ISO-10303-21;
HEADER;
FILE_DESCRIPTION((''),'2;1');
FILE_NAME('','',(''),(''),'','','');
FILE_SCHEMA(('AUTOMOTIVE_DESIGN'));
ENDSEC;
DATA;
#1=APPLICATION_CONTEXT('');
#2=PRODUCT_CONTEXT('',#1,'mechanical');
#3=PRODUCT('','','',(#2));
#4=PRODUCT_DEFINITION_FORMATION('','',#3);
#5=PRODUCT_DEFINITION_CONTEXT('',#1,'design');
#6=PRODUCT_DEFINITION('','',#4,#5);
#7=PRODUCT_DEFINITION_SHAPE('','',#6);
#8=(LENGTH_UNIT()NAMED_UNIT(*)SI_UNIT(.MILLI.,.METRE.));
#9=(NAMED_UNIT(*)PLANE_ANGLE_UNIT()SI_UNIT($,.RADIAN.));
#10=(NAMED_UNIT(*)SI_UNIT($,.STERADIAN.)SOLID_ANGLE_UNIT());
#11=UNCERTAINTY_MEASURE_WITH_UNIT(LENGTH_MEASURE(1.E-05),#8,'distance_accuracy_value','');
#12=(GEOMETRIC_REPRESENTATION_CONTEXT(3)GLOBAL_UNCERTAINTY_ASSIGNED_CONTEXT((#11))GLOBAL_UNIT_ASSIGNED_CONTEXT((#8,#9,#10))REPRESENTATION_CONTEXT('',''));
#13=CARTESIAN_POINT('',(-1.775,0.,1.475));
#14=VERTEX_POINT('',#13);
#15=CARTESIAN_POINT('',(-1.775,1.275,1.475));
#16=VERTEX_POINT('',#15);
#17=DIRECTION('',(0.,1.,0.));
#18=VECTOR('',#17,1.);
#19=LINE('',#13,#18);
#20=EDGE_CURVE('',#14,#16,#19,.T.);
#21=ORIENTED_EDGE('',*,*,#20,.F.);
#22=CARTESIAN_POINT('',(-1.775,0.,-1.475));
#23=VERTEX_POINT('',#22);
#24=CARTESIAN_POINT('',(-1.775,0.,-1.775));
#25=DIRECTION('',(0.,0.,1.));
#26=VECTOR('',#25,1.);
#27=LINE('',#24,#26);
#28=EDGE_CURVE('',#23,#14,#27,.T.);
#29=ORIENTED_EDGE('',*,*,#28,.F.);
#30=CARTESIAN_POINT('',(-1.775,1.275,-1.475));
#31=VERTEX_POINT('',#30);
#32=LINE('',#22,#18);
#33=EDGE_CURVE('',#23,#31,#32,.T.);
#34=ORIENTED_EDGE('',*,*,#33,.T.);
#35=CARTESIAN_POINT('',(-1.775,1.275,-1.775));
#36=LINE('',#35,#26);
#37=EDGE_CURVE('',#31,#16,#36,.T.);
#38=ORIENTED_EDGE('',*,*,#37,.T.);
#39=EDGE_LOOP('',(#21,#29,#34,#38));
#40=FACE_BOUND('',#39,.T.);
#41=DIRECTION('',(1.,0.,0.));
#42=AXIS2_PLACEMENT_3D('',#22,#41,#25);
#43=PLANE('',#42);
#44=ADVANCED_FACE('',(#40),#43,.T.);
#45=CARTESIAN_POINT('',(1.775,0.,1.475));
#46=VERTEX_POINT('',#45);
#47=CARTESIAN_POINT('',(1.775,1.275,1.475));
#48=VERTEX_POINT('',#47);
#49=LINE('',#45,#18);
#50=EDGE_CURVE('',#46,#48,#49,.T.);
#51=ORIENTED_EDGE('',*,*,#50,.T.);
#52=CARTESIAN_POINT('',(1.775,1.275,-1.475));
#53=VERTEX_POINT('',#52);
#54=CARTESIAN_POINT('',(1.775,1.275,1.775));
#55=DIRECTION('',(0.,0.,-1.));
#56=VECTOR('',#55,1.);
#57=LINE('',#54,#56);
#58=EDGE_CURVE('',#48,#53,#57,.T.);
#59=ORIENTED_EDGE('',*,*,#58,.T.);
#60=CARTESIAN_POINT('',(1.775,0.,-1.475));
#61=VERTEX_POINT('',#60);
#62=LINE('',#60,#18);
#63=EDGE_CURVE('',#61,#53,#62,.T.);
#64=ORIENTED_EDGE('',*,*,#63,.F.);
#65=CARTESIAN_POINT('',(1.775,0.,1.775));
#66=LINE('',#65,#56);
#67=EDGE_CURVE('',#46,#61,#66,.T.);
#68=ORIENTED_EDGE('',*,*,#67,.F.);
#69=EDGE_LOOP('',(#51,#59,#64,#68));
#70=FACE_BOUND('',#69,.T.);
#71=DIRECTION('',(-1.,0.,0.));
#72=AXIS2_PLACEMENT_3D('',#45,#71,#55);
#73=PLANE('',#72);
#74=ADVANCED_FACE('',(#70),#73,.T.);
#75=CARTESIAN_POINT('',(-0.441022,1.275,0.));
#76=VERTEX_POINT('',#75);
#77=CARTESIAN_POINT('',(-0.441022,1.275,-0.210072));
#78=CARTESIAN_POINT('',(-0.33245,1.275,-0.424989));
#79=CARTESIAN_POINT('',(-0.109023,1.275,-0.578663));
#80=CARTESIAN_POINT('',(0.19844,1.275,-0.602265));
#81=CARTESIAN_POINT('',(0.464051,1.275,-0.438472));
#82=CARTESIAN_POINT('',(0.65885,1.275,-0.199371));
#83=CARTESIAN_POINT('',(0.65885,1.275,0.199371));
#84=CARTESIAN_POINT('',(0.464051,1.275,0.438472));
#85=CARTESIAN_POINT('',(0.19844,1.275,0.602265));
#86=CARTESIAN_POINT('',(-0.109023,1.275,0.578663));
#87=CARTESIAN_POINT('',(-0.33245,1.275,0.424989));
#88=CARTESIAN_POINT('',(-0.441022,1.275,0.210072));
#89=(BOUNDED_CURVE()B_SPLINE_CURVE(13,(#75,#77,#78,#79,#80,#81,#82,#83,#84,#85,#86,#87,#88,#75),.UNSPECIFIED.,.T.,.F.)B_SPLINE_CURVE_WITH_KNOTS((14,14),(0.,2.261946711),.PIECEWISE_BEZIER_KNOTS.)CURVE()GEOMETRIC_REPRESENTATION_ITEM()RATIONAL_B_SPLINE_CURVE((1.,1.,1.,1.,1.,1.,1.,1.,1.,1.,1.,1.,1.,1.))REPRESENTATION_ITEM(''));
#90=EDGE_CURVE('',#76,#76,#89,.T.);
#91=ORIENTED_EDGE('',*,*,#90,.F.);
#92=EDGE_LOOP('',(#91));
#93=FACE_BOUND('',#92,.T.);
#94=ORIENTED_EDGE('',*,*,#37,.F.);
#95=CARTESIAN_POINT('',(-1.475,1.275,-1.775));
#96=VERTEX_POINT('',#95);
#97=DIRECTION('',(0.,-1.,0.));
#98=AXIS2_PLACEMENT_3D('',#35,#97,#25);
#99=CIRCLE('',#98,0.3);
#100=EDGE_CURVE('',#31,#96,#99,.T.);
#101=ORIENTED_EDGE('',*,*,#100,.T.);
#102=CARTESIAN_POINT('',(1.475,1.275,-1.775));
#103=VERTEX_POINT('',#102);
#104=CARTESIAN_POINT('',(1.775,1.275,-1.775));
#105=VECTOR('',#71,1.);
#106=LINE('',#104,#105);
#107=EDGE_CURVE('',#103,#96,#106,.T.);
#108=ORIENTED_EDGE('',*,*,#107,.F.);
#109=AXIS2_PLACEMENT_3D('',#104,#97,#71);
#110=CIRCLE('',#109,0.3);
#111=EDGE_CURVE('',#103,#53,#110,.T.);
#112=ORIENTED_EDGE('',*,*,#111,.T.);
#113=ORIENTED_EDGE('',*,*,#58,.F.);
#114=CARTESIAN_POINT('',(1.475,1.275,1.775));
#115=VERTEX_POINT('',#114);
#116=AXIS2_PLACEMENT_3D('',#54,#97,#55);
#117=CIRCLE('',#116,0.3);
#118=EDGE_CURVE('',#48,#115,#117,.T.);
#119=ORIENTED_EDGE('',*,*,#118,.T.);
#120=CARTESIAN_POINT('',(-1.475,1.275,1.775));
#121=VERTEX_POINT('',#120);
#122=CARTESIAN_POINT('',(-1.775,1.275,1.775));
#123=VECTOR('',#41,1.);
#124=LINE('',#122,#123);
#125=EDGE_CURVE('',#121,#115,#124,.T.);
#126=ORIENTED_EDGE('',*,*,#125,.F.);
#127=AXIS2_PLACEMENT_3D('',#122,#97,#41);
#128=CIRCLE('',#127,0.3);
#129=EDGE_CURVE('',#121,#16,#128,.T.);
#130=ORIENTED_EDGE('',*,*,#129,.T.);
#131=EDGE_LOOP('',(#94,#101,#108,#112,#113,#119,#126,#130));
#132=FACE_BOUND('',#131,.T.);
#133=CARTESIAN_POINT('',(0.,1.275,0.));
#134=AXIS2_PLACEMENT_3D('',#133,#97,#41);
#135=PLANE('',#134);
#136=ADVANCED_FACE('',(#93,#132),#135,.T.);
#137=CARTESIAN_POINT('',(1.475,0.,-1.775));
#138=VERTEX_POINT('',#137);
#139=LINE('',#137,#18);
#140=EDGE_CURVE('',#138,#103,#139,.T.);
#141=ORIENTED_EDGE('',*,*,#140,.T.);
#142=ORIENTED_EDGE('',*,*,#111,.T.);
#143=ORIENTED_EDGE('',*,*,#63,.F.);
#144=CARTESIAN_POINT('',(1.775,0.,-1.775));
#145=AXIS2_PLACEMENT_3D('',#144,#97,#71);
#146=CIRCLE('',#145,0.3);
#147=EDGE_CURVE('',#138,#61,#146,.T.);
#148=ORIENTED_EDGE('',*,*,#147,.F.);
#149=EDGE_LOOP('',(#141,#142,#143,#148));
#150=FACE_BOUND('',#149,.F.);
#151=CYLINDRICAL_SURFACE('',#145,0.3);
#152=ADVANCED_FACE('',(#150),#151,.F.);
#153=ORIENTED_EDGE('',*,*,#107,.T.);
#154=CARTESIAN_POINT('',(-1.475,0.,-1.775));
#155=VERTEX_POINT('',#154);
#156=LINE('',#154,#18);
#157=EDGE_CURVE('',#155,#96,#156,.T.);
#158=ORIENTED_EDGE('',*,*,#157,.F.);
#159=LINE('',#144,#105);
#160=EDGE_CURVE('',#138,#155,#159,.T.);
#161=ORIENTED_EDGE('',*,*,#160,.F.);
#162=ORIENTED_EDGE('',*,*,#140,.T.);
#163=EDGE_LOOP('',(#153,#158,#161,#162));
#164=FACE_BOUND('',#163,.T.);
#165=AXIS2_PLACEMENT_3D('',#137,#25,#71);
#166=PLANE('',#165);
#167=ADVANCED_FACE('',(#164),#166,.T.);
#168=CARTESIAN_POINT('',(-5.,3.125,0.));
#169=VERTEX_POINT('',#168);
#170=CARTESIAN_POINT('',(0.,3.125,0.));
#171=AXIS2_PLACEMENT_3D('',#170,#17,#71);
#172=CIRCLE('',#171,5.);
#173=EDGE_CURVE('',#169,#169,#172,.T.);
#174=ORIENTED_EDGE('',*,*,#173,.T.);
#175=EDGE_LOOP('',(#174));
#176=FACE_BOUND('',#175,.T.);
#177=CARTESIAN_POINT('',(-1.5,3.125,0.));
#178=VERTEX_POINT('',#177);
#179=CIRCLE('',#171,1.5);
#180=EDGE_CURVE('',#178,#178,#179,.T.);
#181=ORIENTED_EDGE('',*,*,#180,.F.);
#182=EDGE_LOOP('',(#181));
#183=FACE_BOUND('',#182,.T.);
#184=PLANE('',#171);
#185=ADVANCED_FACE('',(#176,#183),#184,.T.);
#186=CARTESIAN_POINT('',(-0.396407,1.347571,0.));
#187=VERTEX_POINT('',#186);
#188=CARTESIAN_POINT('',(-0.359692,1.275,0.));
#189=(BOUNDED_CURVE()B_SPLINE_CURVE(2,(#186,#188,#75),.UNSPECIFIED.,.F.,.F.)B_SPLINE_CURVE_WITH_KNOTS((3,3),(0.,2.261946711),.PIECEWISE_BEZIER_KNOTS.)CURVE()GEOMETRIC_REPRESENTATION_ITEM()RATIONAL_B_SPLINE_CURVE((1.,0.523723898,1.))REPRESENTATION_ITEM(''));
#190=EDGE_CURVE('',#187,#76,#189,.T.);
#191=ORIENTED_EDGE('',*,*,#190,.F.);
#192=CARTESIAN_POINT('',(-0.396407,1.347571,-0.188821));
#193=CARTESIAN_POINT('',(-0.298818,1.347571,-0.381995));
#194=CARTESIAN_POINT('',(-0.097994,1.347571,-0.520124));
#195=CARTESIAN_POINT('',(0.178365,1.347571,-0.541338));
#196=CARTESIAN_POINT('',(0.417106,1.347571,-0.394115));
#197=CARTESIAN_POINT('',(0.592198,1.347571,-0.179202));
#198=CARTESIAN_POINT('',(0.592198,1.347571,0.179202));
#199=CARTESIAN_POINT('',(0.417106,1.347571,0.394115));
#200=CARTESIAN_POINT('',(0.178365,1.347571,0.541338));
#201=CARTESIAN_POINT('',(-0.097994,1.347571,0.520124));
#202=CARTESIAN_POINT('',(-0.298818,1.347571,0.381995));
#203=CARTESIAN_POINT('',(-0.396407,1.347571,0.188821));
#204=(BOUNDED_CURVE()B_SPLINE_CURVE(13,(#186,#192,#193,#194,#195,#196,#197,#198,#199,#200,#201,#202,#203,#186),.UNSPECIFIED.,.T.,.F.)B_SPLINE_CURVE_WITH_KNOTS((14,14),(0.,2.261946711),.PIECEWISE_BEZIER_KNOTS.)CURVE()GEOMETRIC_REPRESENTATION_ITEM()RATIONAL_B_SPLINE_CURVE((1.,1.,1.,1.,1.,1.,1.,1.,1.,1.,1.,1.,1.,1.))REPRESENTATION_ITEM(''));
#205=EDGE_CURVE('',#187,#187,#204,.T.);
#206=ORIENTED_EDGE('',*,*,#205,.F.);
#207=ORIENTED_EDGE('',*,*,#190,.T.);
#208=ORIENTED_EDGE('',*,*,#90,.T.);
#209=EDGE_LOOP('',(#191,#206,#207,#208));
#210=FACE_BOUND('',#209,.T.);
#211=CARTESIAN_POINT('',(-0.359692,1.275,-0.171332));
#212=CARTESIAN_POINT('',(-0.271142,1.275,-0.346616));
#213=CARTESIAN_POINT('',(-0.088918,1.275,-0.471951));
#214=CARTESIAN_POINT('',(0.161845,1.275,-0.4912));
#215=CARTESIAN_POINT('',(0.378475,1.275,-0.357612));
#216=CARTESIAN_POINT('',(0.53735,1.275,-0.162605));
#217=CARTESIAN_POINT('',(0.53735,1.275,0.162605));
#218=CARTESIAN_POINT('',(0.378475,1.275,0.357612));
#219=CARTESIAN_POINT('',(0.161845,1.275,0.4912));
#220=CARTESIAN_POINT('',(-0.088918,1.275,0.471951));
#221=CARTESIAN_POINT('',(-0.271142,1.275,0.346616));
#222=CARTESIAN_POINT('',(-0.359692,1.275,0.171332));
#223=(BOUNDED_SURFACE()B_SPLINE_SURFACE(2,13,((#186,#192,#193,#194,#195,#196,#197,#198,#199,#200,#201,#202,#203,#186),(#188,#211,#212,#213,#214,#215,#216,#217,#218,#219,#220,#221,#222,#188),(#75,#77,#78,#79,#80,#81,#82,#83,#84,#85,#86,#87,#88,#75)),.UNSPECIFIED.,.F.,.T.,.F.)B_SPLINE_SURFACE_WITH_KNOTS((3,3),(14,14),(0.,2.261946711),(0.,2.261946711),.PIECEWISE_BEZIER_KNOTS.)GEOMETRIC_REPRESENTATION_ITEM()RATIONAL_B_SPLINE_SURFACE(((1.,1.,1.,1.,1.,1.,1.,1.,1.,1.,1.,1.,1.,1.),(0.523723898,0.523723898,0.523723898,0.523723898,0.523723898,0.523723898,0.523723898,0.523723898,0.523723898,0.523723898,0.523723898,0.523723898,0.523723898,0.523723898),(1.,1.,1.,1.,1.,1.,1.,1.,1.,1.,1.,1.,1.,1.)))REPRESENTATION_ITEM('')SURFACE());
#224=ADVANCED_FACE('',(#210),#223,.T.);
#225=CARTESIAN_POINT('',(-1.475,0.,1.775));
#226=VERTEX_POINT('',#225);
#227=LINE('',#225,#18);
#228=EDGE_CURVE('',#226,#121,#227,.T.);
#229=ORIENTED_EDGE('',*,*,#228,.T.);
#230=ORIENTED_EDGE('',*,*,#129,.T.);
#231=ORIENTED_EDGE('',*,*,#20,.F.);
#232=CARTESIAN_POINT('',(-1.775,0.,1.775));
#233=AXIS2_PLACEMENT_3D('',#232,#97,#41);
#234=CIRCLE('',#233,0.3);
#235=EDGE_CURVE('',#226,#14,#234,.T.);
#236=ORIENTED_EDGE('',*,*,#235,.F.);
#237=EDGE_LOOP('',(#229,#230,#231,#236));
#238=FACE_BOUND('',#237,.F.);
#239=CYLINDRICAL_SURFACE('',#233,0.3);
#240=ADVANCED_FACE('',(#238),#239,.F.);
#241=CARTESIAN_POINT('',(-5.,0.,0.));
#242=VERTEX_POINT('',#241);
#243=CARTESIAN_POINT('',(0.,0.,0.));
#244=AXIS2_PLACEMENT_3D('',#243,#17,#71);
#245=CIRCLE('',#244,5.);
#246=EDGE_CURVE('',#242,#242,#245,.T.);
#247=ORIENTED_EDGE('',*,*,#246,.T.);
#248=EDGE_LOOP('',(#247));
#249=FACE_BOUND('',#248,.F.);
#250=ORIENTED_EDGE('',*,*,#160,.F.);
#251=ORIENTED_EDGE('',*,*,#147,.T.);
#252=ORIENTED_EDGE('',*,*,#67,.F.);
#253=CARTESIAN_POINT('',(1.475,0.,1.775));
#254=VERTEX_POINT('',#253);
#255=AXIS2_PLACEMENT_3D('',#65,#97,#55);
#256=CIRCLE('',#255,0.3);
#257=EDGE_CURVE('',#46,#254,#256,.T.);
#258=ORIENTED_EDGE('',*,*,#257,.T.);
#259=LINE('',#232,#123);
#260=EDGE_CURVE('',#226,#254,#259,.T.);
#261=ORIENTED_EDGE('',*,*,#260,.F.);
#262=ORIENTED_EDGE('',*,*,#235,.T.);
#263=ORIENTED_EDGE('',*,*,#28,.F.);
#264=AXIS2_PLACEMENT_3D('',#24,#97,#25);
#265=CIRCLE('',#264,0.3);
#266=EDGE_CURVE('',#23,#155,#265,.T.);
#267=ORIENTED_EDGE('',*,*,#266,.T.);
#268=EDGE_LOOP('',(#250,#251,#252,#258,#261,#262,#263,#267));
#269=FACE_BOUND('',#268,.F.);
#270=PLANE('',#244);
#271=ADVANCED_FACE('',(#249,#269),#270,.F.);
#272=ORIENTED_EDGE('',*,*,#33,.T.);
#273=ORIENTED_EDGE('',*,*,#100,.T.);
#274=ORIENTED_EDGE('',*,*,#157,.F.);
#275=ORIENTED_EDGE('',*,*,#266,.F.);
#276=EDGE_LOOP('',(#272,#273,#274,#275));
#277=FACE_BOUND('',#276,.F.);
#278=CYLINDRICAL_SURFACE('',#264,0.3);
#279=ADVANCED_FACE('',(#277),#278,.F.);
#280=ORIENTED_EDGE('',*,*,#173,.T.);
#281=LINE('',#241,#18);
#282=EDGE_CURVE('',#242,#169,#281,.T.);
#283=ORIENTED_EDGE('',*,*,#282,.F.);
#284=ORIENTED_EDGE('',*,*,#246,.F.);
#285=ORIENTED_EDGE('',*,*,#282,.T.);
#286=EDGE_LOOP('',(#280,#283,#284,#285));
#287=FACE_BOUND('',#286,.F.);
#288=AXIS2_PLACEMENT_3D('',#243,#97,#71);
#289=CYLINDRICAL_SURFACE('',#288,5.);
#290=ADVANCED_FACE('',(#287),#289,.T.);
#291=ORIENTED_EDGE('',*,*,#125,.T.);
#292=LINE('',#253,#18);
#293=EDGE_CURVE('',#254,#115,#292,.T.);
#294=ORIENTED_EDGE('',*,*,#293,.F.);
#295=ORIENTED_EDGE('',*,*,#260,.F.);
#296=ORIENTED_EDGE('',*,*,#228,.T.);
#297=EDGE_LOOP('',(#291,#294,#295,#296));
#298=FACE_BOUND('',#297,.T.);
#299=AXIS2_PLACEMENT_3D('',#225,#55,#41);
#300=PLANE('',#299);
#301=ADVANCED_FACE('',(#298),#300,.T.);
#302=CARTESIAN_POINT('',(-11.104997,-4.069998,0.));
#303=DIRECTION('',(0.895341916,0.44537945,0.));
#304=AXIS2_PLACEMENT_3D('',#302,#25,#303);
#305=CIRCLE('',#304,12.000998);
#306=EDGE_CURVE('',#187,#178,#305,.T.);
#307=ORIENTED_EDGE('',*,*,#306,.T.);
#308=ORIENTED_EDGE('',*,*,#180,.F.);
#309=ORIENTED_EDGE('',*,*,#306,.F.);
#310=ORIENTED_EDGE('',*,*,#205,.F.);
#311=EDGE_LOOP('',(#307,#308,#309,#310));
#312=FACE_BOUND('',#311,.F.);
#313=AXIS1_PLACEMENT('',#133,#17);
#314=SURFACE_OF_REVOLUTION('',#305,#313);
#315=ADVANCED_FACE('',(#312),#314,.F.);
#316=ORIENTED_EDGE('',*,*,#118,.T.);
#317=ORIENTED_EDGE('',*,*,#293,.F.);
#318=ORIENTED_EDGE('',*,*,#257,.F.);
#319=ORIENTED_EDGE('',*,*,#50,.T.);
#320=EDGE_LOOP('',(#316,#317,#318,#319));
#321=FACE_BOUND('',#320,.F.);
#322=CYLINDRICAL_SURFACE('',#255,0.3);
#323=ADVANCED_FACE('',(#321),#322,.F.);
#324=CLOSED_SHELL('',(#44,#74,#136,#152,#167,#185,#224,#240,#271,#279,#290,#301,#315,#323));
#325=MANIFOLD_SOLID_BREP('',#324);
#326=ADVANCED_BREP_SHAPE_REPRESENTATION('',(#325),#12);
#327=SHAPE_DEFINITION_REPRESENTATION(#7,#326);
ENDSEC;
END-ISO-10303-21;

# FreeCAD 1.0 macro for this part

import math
import FreeCAD as App
import Part
import Sketcher
Q = App.Units.Quantity


def edges_at(feature, points):
    """Names of the edges that pass closest to the given points."""
    edges = feature.Shape.Edges
    near = lambda p: min(range(len(edges)), key=lambda i: edges[i].distToShape(Part.Vertex(*p))[0])
    return sorted({f"Edge{near(p) + 1}" for p in points})

doc = App.newDocument("Part")
params = doc.addObject("Spreadsheet::Sheet", "Params")
for row, (alias, value) in enumerate([
    ("sketch1_diameter", "10 mm"),
    ("sketch1_diameter2", "0.72 mm"),
    ("pad1_length", "3.125 mm"),
    ("sketch2_radius", "0.3 mm"),
    ("pocket1_length", "1.275 mm"),
    ("sketch3_width", "1.5 mm"),
    ("sketch3_width2", "0.36 mm"),
    ("sketch3_height", "1.85 mm"),
    ("groove_angle", "360 deg"),
    ("fillet_radius", "0.05 mm"),
], start=1):
    params.set(f"A{row}", alias)
    params.set(f"B{row}", "=" + value)
    params.setAlias(f"B{row}", alias)

body = doc.addObject("PartDesign::Body", "Body")

sketch1 = doc.addObject("Sketcher::SketchObject", "Sketch")
body.addObject(sketch1)
sketch1.AttachmentSupport = (doc.XZ_Plane, [""])
sketch1.MapMode = "FlatFace"
sketch1.addGeometry([
    Part.Circle(App.Vector(0, 0, 0), App.Vector(0, 0, 1), 5),
    Part.Circle(App.Vector(0, 0, 0), App.Vector(0, 0, 1), 0.36),
], False)
sketch1.addConstraint([
    Sketcher.Constraint("Coincident", 0, 3, -1, 1),
    Sketcher.Constraint("Coincident", 1, 3, -1, 1),
    Sketcher.Constraint("Diameter", 0, Q("10 mm")),
    Sketcher.Constraint("Diameter", 1, Q("0.72 mm")),
])
sketch1.setExpression("Constraints[2]", "Params.sketch1_diameter")
sketch1.setExpression("Constraints[3]", "Params.sketch1_diameter2")
pad1 = doc.addObject("PartDesign::Pad", "Pad")
body.addObject(pad1)
pad1.Profile = sketch1
pad1.setExpression("Length", "Params.pad1_length")
pad1.Reversed = True

sketch2 = doc.addObject("Sketcher::SketchObject", "Sketch001")
body.addObject(sketch2)
sketch2.AttachmentSupport = (doc.XZ_Plane, [""])
sketch2.MapMode = "FlatFace"
sketch2.addGeometry([
    Part.ArcOfCircle(Part.Circle(App.Vector(-1.775, 1.775, 0), App.Vector(0, 0, 1), 0.3), math.radians(0), math.radians(270)),
    Part.LineSegment(App.Vector(-1.775, 1.475, 0), App.Vector(-1.775, -1.475, 0)),
    Part.ArcOfCircle(Part.Circle(App.Vector(-1.775, -1.775, 0), App.Vector(0, 0, 1), 0.3), math.radians(90), math.radians(360)),
    Part.LineSegment(App.Vector(-1.475, -1.775, 0), App.Vector(1.475, -1.775, 0)),
    Part.ArcOfCircle(Part.Circle(App.Vector(1.775, -1.775, 0), App.Vector(0, 0, 1), 0.3), math.radians(180), math.radians(450)),
    Part.LineSegment(App.Vector(1.775, -1.475, 0), App.Vector(1.775, 1.475, 0)),
    Part.ArcOfCircle(Part.Circle(App.Vector(1.775, 1.775, 0), App.Vector(0, 0, 1), 0.3), math.radians(-90), math.radians(180)),
    Part.LineSegment(App.Vector(1.475, 1.775, 0), App.Vector(-1.475, 1.775, 0)),
], False)
sketch2.addConstraint([
    Sketcher.Constraint("Coincident", 0, 2, 1, 1),
    Sketcher.Constraint("Coincident", 1, 2, 2, 1),
    Sketcher.Constraint("Coincident", 2, 2, 3, 1),
    Sketcher.Constraint("Coincident", 3, 2, 4, 1),
    Sketcher.Constraint("Coincident", 4, 2, 5, 1),
    Sketcher.Constraint("Coincident", 5, 2, 6, 1),
    Sketcher.Constraint("Coincident", 6, 2, 7, 1),
    Sketcher.Constraint("Coincident", 7, 2, 0, 1),
    Sketcher.Constraint("Vertical", 1),
    Sketcher.Constraint("Horizontal", 3),
    Sketcher.Constraint("Vertical", 5),
    Sketcher.Constraint("Horizontal", 7),
    Sketcher.Constraint("Equal", 0, 2),
    Sketcher.Constraint("Equal", 2, 4),
    Sketcher.Constraint("Equal", 4, 6),
    Sketcher.Constraint("Symmetric", 0, 3, 4, 3, -1, 1),
    Sketcher.Constraint("Symmetric", 2, 3, 6, 3, -1, 1),
    Sketcher.Constraint("Symmetric", 2, 3, 4, 3, -2),
    Sketcher.Constraint("Horizontal", 4, 3, 2, 2),
    Sketcher.Constraint("Horizontal", 0, 3, 6, 2),
    Sketcher.Constraint("Vertical", 2, 3, 0, 2),
    Sketcher.Constraint("Vertical", 6, 3, 4, 2),
    Sketcher.Constraint("Equal", 7, 1),
    Sketcher.Constraint("Radius", 0, Q("0.3 mm")),
    Sketcher.Constraint("DistanceY", 2, 3, 0, 3, Q("3.55 mm")),
])
sketch2.setExpression("Constraints[23]", "Params.sketch2_radius")
pocket1 = doc.addObject("PartDesign::Pocket", "Pocket")
body.addObject(pocket1)
pocket1.Profile = sketch2
pocket1.setExpression("Length", "Params.pocket1_length")

sketch3 = doc.addObject("Sketcher::SketchObject", "Sketch002")
body.addObject(sketch3)
sketch3.AttachmentSupport = (doc.XY_Plane, [""])
sketch3.MapMode = "FlatFace"
sketch3.addGeometry([
    Part.ArcOfCircle(Part.Circle(App.Vector(-11.104997, -4.069998, 0), App.Vector(0, 0, 1), 12.000998), math.radians(26.447618), math.radians(36.83648)),
    Part.LineSegment(App.Vector(-0.36, 1.275, 0), App.Vector(0, 1.275, 0)),
    Part.LineSegment(App.Vector(0, 1.275, 0), App.Vector(0, 3.125, 0)),
    Part.LineSegment(App.Vector(0, 3.125, 0), App.Vector(-1.5, 3.125, 0)),
], False)
sketch3.addConstraint([
    Sketcher.Constraint("Coincident", 0, 1, 1, 1),
    Sketcher.Constraint("Coincident", 1, 2, 2, 1),
    Sketcher.Constraint("Coincident", 2, 2, 3, 1),
    Sketcher.Constraint("Coincident", 3, 2, 0, 2),
    Sketcher.Constraint("Horizontal", 1),
    Sketcher.Constraint("Vertical", 2),
    Sketcher.Constraint("Horizontal", 3),
    Sketcher.Constraint("PointOnObject", 1, 2, -2),
    Sketcher.Constraint("DistanceX", 3, 2, 3, 1, Q("1.5 mm")),
    Sketcher.Constraint("Radius", 0, Q("12.001 mm")),
    Sketcher.Constraint("DistanceX", 1, 1, 1, 2, Q("0.36 mm")),
    Sketcher.Constraint("DistanceY", 2, 1, 2, 2, Q("1.85 mm")),
    Sketcher.Constraint("DistanceY", 0, 3, -1, 1, Q("4.07 mm")),
])
sketch3.setExpression("Constraints[8]", "Params.sketch3_width")
sketch3.setExpression("Constraints[10]", "Params.sketch3_width2")
sketch3.setExpression("Constraints[11]", "Params.sketch3_height")
groove = doc.addObject("PartDesign::Groove", "Groove")
body.addObject(groove)
groove.Profile = sketch3
groove.ReferenceAxis = (sketch3, ["V_Axis"])
groove.setExpression("Angle", "Params.groove_angle")
doc.recompute()

fillet = doc.addObject("PartDesign::Fillet", "Fillet")
body.addObject(fillet)
fillet.Base = (groove, edges_at(groove, [(0.36, 1.275, 0)]))
fillet.setExpression("Radius", "Params.fillet_radius")

doc.recompute()
